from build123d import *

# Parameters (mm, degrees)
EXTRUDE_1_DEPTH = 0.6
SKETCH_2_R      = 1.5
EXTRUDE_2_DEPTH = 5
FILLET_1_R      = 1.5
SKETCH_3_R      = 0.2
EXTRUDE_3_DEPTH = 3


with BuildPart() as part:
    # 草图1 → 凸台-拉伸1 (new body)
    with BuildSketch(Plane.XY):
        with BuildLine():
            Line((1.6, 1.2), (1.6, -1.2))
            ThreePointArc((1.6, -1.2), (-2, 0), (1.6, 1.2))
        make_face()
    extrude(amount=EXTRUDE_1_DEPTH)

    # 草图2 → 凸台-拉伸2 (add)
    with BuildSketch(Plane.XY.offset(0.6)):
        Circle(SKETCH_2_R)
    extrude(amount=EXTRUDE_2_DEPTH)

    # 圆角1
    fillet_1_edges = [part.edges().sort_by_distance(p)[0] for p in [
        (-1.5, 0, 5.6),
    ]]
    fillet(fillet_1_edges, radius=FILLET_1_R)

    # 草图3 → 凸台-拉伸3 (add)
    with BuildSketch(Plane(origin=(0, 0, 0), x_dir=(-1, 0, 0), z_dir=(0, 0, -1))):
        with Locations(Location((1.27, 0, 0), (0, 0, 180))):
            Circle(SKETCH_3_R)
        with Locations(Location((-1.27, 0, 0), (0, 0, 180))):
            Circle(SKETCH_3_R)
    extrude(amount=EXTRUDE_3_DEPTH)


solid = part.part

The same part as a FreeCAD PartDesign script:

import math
import FreeCAD as App
import Part
import Sketcher
from FreeCAD import Vector
Q = App.Units.Quantity


def edges_at(feature, points):
    """Names of the edges that pass closest to the given points."""
    edges = feature.Shape.Edges
    near = lambda p: min(range(len(edges)), key=lambda i: edges[i].distToShape(Part.Vertex(*p))[0])
    return sorted({f"Edge{near(p) + 1}" for p in points})

doc = App.newDocument("Part")
body = doc.addObject("PartDesign::Body", "Body")

sketch1 = body.newObject("Sketcher::SketchObject", "Sketch")
sketch1.AttachmentSupport = (doc.getObject("XY_Plane"), [""])
sketch1.MapMode = "FlatFace"
sketch1.addGeometry(Part.LineSegment(Vector(1.6, -1.2, 0), Vector(1.6, 1.2, 0)), False)
sketch1.addGeometry(Part.ArcOfCircle(Part.Circle(Vector(0, 0, 0), Vector(0, 0, 1), 2), math.radians(37), math.radians(323)), False)
sketch1.addConstraint(Sketcher.Constraint("Coincident", 0, 1, 1, 2))
sketch1.addConstraint(Sketcher.Constraint("Coincident", 1, 1, 0, 2))
sketch1.addConstraint(Sketcher.Constraint("Vertical", 0))
sketch1.addConstraint(Sketcher.Constraint("Coincident", 1, 3, -1, 1))
sketch1.addConstraint(Sketcher.Constraint("Radius", 1, Q("2 mm")))
sketch1.addConstraint(Sketcher.Constraint("DistanceY", 0, 1, 0, 2, Q("2.4 mm")))
pad1 = body.newObject("PartDesign::Pad", "Pad")
pad1.Profile = sketch1
pad1.Length = 0.6

sketch2 = body.newObject("Sketcher::SketchObject", "Sketch001")
sketch2.AttachmentSupport = (doc.getObject("XY_Plane"), [""])
sketch2.MapMode = "FlatFace"
sketch2.AttachmentOffset = App.Placement(Vector(0, 0, 0.6), App.Rotation())
sketch2.addGeometry(Part.Circle(Vector(0, 0, 0), Vector(0, 0, 1), 1.5), False)
sketch2.addConstraint(Sketcher.Constraint("Coincident", 0, 3, -1, 1))
sketch2.addConstraint(Sketcher.Constraint("Diameter", 0, Q("3 mm")))
pad2 = body.newObject("PartDesign::Pad", "Pad001")
pad2.Profile = sketch2
pad2.Length = 5
doc.recompute()

fillet = body.newObject("PartDesign::Fillet", "Fillet")
fillet.Base = (pad2, edges_at(pad2, [(-1.5, 0, 5.6)]))
fillet.Radius = 1.5

sketch3 = body.newObject("Sketcher::SketchObject", "Sketch002")
sketch3.AttachmentSupport = (doc.getObject("XY_Plane"), [""])
sketch3.MapMode = "FlatFace"
sketch3.addGeometry(Part.Circle(Vector(-1.27, 0, 0), Vector(0, 0, 1), 0.2), False)
sketch3.addGeometry(Part.Circle(Vector(1.27, 0, 0), Vector(0, 0, 1), 0.2), False)
sketch3.addConstraint(Sketcher.Constraint("Equal", 0, 1))
sketch3.addConstraint(Sketcher.Constraint("Symmetric", 0, 3, 1, 3, -1, 1))
sketch3.addConstraint(Sketcher.Constraint("PointOnObject", 0, 3, -1))
sketch3.addConstraint(Sketcher.Constraint("Diameter", 0, Q("0.4 mm")))
sketch3.addConstraint(Sketcher.Constraint("DistanceX", 0, 3, -1, 1, Q("1.27 mm")))
pad3 = body.newObject("PartDesign::Pad", "Pad002")
pad3.Profile = sketch3
pad3.Length = 3
pad3.Reversed = True

doc.recompute()
